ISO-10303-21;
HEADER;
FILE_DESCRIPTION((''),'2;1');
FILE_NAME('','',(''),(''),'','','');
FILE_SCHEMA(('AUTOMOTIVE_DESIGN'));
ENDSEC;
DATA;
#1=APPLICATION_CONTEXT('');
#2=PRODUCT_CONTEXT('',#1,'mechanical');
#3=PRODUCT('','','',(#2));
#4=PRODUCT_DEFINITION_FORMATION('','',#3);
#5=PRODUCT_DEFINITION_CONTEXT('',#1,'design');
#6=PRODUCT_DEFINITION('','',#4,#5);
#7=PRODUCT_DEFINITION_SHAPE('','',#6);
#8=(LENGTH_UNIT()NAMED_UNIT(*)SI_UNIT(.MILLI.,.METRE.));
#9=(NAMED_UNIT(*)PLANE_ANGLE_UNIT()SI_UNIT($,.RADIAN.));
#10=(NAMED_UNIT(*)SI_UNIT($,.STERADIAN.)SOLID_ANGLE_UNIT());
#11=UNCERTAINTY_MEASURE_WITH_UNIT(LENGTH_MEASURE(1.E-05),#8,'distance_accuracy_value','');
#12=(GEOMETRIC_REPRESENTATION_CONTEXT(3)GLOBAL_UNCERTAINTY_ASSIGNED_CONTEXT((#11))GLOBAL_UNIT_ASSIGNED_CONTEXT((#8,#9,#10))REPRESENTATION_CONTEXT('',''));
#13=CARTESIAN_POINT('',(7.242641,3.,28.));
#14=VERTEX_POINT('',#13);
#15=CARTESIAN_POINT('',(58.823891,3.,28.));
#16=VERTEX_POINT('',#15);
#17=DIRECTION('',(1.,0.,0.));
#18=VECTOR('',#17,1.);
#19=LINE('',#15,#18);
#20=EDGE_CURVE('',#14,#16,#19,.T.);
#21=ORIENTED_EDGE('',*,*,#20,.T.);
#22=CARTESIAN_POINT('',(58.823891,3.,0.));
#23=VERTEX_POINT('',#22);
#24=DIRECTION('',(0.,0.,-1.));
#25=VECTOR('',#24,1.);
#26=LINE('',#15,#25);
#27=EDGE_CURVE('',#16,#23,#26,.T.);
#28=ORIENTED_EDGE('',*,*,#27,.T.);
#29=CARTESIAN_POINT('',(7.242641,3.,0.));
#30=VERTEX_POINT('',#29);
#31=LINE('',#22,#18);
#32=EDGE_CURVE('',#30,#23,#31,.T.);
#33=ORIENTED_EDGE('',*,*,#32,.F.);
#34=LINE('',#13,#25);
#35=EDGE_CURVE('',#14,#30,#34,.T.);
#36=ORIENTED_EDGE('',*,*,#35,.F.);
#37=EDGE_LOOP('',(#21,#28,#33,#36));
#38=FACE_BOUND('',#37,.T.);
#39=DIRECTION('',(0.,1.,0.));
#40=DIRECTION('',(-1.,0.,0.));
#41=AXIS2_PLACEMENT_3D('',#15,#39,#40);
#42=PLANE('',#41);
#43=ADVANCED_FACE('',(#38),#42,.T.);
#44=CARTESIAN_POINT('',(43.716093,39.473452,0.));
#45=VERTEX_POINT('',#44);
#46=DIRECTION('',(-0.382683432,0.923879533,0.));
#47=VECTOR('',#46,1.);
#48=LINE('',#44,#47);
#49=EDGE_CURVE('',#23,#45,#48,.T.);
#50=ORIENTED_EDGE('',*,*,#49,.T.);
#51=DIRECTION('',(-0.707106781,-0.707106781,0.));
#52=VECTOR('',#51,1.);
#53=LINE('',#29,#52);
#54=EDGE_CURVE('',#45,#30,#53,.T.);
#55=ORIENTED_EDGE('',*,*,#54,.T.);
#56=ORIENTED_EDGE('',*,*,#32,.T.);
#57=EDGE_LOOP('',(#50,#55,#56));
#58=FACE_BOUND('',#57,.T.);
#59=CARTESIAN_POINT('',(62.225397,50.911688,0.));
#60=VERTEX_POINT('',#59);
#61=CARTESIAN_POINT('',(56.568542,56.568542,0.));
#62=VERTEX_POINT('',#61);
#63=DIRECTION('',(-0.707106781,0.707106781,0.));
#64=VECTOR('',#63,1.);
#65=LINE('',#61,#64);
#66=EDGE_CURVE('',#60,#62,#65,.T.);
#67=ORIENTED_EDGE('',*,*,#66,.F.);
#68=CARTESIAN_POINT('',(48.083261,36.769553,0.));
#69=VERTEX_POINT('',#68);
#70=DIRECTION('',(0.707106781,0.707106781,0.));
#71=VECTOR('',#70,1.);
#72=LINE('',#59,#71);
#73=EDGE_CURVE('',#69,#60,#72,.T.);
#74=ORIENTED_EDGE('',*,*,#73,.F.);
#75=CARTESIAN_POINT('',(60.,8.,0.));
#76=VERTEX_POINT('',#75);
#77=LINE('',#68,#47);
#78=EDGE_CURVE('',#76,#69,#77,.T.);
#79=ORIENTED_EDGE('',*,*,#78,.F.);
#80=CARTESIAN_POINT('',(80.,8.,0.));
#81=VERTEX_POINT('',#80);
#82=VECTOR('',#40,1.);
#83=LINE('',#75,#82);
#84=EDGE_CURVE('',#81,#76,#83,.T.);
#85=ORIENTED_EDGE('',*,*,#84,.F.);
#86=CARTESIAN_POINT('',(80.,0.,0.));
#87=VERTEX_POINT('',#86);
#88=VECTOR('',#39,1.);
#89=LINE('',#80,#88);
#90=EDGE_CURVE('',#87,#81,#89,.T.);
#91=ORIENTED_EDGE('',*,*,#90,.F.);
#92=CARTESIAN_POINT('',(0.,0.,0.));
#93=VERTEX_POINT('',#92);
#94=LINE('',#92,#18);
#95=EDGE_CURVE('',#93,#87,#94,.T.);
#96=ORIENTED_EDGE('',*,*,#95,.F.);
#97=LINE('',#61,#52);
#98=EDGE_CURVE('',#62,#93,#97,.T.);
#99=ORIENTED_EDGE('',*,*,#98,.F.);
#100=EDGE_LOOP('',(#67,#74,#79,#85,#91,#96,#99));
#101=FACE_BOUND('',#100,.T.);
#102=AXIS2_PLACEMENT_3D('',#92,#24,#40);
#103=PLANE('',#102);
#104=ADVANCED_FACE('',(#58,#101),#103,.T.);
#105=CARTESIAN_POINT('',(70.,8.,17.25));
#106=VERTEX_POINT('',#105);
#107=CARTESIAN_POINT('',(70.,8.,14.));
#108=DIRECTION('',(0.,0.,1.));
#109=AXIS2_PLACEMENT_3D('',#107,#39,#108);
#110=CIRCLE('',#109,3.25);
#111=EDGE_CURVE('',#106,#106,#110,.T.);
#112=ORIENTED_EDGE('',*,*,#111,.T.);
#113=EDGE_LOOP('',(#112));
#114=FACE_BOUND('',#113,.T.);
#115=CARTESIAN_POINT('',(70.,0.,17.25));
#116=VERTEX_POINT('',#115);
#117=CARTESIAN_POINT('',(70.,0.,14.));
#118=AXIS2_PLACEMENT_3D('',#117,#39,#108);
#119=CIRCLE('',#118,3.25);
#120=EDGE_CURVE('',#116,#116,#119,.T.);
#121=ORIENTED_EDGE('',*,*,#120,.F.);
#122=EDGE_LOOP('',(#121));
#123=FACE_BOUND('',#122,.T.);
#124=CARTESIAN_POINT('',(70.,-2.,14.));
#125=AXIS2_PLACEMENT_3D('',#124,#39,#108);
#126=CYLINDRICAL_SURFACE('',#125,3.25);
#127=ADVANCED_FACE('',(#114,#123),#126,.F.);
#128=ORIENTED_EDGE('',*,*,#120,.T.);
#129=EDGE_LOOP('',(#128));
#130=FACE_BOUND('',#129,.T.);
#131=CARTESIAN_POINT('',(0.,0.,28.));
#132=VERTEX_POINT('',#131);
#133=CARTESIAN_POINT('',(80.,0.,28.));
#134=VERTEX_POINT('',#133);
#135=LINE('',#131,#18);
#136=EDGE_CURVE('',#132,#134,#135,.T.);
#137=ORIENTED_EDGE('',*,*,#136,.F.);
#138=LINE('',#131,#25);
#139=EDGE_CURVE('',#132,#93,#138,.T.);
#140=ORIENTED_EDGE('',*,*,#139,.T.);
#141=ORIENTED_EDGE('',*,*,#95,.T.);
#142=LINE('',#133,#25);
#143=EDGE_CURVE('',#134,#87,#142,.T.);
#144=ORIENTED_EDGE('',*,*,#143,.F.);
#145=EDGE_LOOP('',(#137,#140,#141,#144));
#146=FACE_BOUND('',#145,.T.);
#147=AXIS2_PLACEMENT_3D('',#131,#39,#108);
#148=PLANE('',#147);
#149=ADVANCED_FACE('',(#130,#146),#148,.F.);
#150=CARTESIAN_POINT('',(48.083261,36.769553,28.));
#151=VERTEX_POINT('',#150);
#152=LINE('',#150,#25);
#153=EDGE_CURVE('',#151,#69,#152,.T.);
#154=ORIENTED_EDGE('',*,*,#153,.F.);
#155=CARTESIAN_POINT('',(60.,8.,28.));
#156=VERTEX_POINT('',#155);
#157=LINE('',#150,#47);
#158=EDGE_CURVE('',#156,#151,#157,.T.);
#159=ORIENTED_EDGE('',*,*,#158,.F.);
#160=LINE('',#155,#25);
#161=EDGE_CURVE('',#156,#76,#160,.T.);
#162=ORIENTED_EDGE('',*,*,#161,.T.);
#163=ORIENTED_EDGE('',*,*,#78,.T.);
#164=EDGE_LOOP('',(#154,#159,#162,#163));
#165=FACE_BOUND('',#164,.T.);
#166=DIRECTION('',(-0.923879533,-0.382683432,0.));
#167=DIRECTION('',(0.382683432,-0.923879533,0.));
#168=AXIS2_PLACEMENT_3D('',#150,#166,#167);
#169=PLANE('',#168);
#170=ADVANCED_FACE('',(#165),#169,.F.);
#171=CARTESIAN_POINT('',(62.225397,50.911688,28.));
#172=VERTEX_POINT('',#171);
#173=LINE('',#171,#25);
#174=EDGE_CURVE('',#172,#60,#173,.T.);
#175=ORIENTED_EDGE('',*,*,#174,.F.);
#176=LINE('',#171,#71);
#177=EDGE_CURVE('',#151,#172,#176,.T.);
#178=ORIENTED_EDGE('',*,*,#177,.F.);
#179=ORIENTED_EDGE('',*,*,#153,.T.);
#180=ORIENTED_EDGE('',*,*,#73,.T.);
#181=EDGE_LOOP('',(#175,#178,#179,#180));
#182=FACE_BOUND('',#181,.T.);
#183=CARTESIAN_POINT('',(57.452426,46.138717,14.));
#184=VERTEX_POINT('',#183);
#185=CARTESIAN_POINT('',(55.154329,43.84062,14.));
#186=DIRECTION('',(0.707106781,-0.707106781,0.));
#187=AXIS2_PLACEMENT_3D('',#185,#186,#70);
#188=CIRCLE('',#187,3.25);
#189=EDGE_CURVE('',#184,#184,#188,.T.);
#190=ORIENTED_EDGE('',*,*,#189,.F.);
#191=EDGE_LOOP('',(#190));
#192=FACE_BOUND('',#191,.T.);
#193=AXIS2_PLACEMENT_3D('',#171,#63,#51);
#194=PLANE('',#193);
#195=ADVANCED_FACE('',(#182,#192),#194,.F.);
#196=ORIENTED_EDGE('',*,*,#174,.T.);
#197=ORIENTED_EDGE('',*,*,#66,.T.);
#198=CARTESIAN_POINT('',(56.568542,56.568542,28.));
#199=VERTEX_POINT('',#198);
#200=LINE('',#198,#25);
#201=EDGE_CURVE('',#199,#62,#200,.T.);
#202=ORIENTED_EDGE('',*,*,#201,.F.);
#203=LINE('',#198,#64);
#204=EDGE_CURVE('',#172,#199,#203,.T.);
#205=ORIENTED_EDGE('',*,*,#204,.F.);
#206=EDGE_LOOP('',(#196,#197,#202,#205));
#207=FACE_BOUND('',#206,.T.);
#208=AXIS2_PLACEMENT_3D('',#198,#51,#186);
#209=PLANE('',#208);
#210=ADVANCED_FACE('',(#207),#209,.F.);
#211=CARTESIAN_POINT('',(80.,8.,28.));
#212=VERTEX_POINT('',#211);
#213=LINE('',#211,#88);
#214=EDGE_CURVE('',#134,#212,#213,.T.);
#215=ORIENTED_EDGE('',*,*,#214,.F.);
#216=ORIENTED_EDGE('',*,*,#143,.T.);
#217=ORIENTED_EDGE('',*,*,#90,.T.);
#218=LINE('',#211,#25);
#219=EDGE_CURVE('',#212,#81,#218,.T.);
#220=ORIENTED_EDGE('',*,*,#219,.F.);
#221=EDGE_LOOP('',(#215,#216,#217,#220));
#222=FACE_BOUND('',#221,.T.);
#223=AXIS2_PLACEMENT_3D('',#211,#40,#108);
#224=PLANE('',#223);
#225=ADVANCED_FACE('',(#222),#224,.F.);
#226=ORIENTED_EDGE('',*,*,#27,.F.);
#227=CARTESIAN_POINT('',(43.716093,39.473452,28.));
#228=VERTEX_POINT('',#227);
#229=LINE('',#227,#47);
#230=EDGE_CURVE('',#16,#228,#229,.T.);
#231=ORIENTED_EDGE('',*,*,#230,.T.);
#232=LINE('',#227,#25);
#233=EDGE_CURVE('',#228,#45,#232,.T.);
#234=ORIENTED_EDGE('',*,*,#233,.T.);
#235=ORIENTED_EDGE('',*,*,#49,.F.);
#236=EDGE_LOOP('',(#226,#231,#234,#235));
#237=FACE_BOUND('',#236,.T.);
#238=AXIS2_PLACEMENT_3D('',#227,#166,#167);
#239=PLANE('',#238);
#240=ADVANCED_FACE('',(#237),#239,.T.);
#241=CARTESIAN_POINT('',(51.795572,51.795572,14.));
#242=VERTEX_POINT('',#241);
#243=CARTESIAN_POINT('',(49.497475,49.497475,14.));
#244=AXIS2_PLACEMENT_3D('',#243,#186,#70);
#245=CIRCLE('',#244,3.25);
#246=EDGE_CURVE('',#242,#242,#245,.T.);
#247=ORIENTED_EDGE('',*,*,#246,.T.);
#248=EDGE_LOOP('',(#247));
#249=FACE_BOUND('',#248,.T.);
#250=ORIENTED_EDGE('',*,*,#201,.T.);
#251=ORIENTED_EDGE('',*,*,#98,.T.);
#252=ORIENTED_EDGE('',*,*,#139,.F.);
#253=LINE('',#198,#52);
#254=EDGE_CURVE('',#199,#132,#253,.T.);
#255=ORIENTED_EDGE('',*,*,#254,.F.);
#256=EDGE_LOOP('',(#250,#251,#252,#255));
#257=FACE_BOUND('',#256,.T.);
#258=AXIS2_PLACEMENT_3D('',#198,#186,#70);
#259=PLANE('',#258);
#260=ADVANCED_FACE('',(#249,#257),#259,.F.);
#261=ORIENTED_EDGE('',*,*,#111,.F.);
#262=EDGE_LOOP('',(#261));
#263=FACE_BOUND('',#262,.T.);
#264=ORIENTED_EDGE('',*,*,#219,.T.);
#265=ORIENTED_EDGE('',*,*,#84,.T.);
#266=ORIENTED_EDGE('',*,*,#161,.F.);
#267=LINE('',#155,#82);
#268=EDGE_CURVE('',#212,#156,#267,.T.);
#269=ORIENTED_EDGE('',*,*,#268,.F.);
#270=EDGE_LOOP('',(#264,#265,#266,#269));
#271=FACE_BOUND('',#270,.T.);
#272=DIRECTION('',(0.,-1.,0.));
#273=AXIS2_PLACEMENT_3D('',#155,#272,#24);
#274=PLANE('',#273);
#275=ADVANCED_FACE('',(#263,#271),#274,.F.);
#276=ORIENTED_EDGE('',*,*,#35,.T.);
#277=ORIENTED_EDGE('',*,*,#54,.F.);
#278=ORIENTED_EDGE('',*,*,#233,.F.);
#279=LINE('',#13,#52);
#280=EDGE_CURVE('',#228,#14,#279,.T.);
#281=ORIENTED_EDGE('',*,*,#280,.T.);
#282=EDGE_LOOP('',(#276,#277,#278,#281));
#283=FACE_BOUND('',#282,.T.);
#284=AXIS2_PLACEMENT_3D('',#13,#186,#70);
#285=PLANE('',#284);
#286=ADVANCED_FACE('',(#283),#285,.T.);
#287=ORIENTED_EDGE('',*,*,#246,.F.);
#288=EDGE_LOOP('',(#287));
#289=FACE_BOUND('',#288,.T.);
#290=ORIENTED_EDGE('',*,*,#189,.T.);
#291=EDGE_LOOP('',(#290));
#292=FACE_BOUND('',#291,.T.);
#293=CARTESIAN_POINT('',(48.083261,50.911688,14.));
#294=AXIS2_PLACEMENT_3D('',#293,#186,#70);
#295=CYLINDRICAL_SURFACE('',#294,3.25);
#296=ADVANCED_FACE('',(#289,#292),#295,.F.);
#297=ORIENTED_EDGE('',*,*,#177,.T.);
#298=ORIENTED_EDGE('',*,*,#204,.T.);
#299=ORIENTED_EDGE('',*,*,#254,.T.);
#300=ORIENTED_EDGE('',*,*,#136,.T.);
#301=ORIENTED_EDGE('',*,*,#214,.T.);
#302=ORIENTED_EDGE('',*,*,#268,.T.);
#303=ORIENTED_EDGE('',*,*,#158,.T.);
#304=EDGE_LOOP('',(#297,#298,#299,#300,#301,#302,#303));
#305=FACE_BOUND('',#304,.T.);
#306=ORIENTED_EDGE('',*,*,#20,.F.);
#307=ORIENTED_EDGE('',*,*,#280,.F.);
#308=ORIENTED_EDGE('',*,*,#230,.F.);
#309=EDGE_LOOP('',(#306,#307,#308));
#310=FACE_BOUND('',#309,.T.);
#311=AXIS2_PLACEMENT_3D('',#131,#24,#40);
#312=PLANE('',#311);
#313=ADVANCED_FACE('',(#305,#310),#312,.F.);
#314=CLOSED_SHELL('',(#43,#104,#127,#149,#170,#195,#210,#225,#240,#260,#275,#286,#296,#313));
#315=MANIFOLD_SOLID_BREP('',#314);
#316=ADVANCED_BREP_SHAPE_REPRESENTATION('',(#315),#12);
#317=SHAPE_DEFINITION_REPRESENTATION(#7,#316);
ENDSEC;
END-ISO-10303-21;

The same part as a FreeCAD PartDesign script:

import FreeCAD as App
import Part
import Sketcher

V = App.Vector
Q = App.Units.Quantity

doc = App.newDocument("Part")
body = doc.addObject("PartDesign::Body", "Body")

# Sketch on XY plane
sketch1 = body.newObject("Sketcher::SketchObject", "Sketch")
sketch1.AttachmentSupport = (doc.getObject("XY_Plane"), [""])
sketch1.MapMode = "FlatFace"
sketch1.addGeometry([
    Part.LineSegment(V(57, 57, 0), V(0, 0, 0)),  # 0
    Part.LineSegment(V(0, 0, 0), V(80, 0, 0)),  # 1
    Part.LineSegment(V(80, 0, 0), V(80, 8, 0)),  # 2
    Part.LineSegment(V(80, 8, 0), V(60, 8, 0)),  # 3
    Part.LineSegment(V(60, 8, 0), V(48, 37, 0)),  # 4
    Part.LineSegment(V(48, 37, 0), V(62, 51, 0)),  # 5
    Part.LineSegment(V(62, 51, 0), V(57, 57, 0)),  # 6
    Part.LineSegment(V(59, 3, 0), V(7, 3, 0)),  # 7
    Part.LineSegment(V(7, 3, 0), V(44, 39, 0)),  # 8
    Part.LineSegment(V(44, 39, 0), V(59, 3, 0)),  # 9
], False)
sketch1.addConstraint([
    Sketcher.Constraint("Coincident", 0, 2, 1, 1),
    Sketcher.Constraint("Coincident", 1, 2, 2, 1),
    Sketcher.Constraint("Coincident", 2, 2, 3, 1),
    Sketcher.Constraint("Coincident", 3, 2, 4, 1),
    Sketcher.Constraint("Coincident", 4, 2, 5, 1),
    Sketcher.Constraint("Coincident", 5, 2, 6, 1),
    Sketcher.Constraint("Coincident", 6, 2, 0, 1),
    Sketcher.Constraint("Coincident", 7, 2, 8, 1),
    Sketcher.Constraint("Coincident", 8, 2, 9, 1),
    Sketcher.Constraint("Coincident", 9, 2, 7, 1),
    Sketcher.Constraint("Horizontal", 1),
    Sketcher.Constraint("Vertical", 2),
    Sketcher.Constraint("Horizontal", 3),
    Sketcher.Constraint("Horizontal", 7),
    Sketcher.Constraint("Coincident", 0, 2, -1, 1),
    Sketcher.Constraint("Parallel", 0, 5),
    Sketcher.Constraint("Perpendicular", 5, 6),
    Sketcher.Constraint("Perpendicular", 6, 8),
    Sketcher.Constraint("Parallel", 4, 9),
    Sketcher.Constraint("DistanceX", 1, 1, 1, 2, Q("80 mm")),
    Sketcher.Constraint("DistanceX", 3, 2, 3, 1, Q("20 mm")),
    Sketcher.Constraint("DistanceY", 2, 1, 2, 2, Q("8 mm")),
    Sketcher.Constraint("Angle", 0, Q("-135 deg")),
    Sketcher.Constraint("Distance", 0, Q("80 mm")),
    Sketcher.Constraint("Distance", 5, Q("20 mm")),
    Sketcher.Constraint("Distance", 6, Q("8 mm")),
    Sketcher.Constraint("DistanceY", -1, 1, 7, 2, Q("3 mm")),
    Sketcher.Constraint("DistanceX", 7, 2, 7, 1, Q("51.581251 mm")),
    Sketcher.Constraint("DistanceX", 7, 2, 6, 2, Q("49.325902 mm")),
])
pad1 = body.newObject("PartDesign::Pad", "Pad")
pad1.Profile = sketch1
pad1.Length = 28

# Sketch on XZ plane
sketch2 = body.newObject("Sketcher::SketchObject", "Sketch001")
sketch2.AttachmentSupport = (doc.getObject("XZ_Plane"), [""])
sketch2.MapMode = "FlatFace"
sketch2.AttachmentOffset = App.Placement(V(0, 0, -8), App.Rotation())
sketch2.addGeometry(Part.Circle(V(70, 14, 0), V(0, 0, 1), 3.2), False)
sketch2.addConstraint([
    Sketcher.Constraint("Diameter", 0, Q("6.5 mm")),
    Sketcher.Constraint("DistanceX", -1, 1, 0, 3, Q("70 mm")),
    Sketcher.Constraint("DistanceY", -1, 1, 0, 3, Q("14 mm")),
])
pocket1 = body.newObject("PartDesign::Pocket", "Pocket")
pocket1.Profile = sketch2
pocket1.Length = 10
pocket1.Reversed = True

# Sketch on an angled plane
sketch3 = body.newObject("Sketcher::SketchObject", "Sketch002")
sketch3.Placement = App.Placement(V(5.656854, -5.656854, 0), App.Rotation(V(0, 0, -1), V(0.707106781, 0.707106781, 0), V(0.707106781, -0.707106781, 0), "ZXY"))
sketch3.addGeometry(Part.Circle(V(-14, 70, 0), V(0, 0, 1), 3.2), False)
sketch3.addConstraint([
    Sketcher.Constraint("Diameter", 0, Q("6.5 mm")),
    Sketcher.Constraint("DistanceX", 0, 3, -1, 1, Q("14 mm")),
    Sketcher.Constraint("DistanceY", -1, 1, 0, 3, Q("70 mm")),
])
pocket2 = body.newObject("PartDesign::Pocket", "Pocket001")
pocket2.Profile = sketch3
pocket2.Length = 10

doc.recompute()
